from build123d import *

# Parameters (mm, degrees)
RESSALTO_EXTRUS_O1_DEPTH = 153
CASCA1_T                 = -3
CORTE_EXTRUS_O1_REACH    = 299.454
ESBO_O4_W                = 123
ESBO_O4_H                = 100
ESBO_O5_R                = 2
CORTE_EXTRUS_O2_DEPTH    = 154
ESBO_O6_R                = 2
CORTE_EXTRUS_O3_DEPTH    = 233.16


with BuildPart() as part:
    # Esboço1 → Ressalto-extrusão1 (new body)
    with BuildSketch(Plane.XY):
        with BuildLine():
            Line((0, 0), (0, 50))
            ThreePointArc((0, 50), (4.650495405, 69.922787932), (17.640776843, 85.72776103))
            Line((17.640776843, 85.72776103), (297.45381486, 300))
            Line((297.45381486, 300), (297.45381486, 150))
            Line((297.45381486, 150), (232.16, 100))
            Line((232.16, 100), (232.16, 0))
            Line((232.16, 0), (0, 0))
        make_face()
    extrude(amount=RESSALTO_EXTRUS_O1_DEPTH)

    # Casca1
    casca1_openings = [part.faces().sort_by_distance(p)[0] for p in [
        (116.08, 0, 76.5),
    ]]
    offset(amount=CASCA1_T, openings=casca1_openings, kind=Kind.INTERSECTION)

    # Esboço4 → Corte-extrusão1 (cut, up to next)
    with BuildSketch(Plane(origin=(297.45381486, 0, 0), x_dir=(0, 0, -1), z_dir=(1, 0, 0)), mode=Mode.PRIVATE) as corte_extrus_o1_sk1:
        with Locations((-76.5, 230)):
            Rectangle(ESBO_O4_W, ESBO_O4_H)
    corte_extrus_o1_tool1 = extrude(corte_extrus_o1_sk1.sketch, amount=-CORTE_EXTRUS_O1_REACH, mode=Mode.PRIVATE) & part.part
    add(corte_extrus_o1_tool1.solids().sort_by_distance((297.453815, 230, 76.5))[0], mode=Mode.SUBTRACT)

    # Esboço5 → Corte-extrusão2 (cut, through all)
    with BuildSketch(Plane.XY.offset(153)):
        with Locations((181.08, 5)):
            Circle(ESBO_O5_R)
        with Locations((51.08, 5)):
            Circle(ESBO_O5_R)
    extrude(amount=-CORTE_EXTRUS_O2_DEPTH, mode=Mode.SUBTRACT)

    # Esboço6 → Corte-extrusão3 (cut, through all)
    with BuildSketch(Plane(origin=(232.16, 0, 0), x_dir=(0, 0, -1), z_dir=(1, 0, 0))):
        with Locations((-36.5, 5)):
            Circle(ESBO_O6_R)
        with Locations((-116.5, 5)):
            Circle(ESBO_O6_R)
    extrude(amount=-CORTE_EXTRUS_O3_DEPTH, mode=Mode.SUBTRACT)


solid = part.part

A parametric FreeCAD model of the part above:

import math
import FreeCAD as App
import Part
import Sketcher
from FreeCAD import Vector


def faces_at(feature, points):
    """Names of the faces that lie closest to the given points."""
    faces = feature.Shape.Faces
    near = lambda p: min(range(len(faces)), key=lambda i: faces[i].distToShape(Part.Vertex(*p))[0])
    return sorted({f"Face{near(p) + 1}" for p in points})

doc = App.newDocument("Part")
body = doc.addObject("PartDesign::Body", "Body")

sketch1 = body.newObject("Sketcher::SketchObject", "Sketch")
sketch1.AttachmentSupport = (doc.getObject("XY_Plane"), [""])
sketch1.MapMode = "FlatFace"
sketch1.addGeometry(Part.LineSegment(Vector(0, 50, 0), Vector(0, 0, 0)), False)
sketch1.addGeometry(Part.LineSegment(Vector(0, 0, 0), Vector(232.16, 0, 0)), False)
sketch1.addGeometry(Part.LineSegment(Vector(232.16, 0, 0), Vector(232.16, 100, 0)), False)
sketch1.addGeometry(Part.LineSegment(Vector(232.16, 100, 0), Vector(297.453815, 150, 0)), False)
sketch1.addGeometry(Part.LineSegment(Vector(297.453815, 150, 0), Vector(297.453815, 300, 0)), False)
sketch1.addGeometry(Part.LineSegment(Vector(297.453815, 300, 0), Vector(17.640777, 85.727761, 0)), False)
sketch1.addGeometry(Part.ArcOfCircle(Part.Circle(Vector(45, 50, 0), Vector(0, 0, 1), 45), math.radians(127.443784), math.radians(180)), False)
sketch1.addConstraint(Sketcher.Constraint("Coincident", 0, 2, 1, 1))
sketch1.addConstraint(Sketcher.Constraint("Coincident", 1, 2, 2, 1))
sketch1.addConstraint(Sketcher.Constraint("Coincident", 2, 2, 3, 1))
sketch1.addConstraint(Sketcher.Constraint("Coincident", 3, 2, 4, 1))
sketch1.addConstraint(Sketcher.Constraint("Coincident", 4, 2, 5, 1))
sketch1.addConstraint(Sketcher.Constraint("Tangent", 5, 2, 6, 1))
sketch1.addConstraint(Sketcher.Constraint("Tangent", 6, 2, 0, 1))
sketch1.addConstraint(Sketcher.Constraint("Vertical", 0))
sketch1.addConstraint(Sketcher.Constraint("Horizontal", 1))
sketch1.addConstraint(Sketcher.Constraint("Vertical", 2))
sketch1.addConstraint(Sketcher.Constraint("Vertical", 4))
sketch1.addConstraint(Sketcher.Constraint("Coincident", 0, 2, -1, 1))
sketch1.addConstraint(Sketcher.Constraint("Parallel", 3, 5))
sketch1.addConstraint(Sketcher.Constraint("Radius", 6, 45.0))
sketch1.addConstraint(Sketcher.Constraint("DistanceY", 0, 2, 0, 1, 50.0))
sketch1.addConstraint(Sketcher.Constraint("DistanceY", 2, 1, 2, 2, 100.0))
sketch1.addConstraint(Sketcher.Constraint("DistanceY", 4, 1, 4, 2, 150.0))
sketch1.addConstraint(Sketcher.Constraint("DistanceY", -1, 1, 3, 2, 150.0))
sketch1.addConstraint(Sketcher.Constraint("DistanceX", 1, 1, 1, 2, 232.16))
pad1 = body.newObject("PartDesign::Pad", "Pad")
pad1.Profile = sketch1
pad1.Length = 153
doc.recompute()

thickness = body.newObject("PartDesign::Thickness", "Thickness")
thickness.Base = (pad1, faces_at(pad1, [(116.08, 0, 76.5)]))
thickness.Value = 3
thickness.Reversed = True
thickness.Join = "Intersection"

sketch2 = body.newObject("Sketcher::SketchObject", "Sketch001")
sketch2.AttachmentSupport = (doc.getObject("YZ_Plane"), [""])
sketch2.MapMode = "FlatFace"
sketch2.AttachmentOffset = App.Placement(Vector(0, 0, 297.453815), App.Rotation())
sketch2.addGeometry(Part.LineSegment(Vector(280, 138, 0), Vector(180, 138, 0)), False)
sketch2.addGeometry(Part.LineSegment(Vector(180, 138, 0), Vector(180, 15, 0)), False)
sketch2.addGeometry(Part.LineSegment(Vector(180, 15, 0), Vector(280, 15, 0)), False)
sketch2.addGeometry(Part.LineSegment(Vector(280, 15, 0), Vector(280, 138, 0)), False)
sketch2.addConstraint(Sketcher.Constraint("Coincident", 0, 2, 1, 1))
sketch2.addConstraint(Sketcher.Constraint("Coincident", 1, 2, 2, 1))
sketch2.addConstraint(Sketcher.Constraint("Coincident", 2, 2, 3, 1))
sketch2.addConstraint(Sketcher.Constraint("Coincident", 3, 2, 0, 1))
sketch2.addConstraint(Sketcher.Constraint("Horizontal", 0))
sketch2.addConstraint(Sketcher.Constraint("Vertical", 1))
sketch2.addConstraint(Sketcher.Constraint("Horizontal", 2))
sketch2.addConstraint(Sketcher.Constraint("Vertical", 3))
sketch2.addConstraint(Sketcher.Constraint("DistanceX", 0, 2, 0, 1, 100.0))
sketch2.addConstraint(Sketcher.Constraint("DistanceY", 1, 2, 1, 1, 123.0))
sketch2.addConstraint(Sketcher.Constraint("DistanceX", -1, 1, 0, 2, 180.0))
sketch2.addConstraint(Sketcher.Constraint("DistanceY", -1, 1, 0, 2, 138.0))
pocket1 = body.newObject("PartDesign::Pocket", "Pocket")
pocket1.Profile = sketch2
pocket1.Type = "UpToFirst"

sketch3 = body.newObject("Sketcher::SketchObject", "Sketch002")
sketch3.AttachmentSupport = (doc.getObject("XY_Plane"), [""])
sketch3.MapMode = "FlatFace"
sketch3.AttachmentOffset = App.Placement(Vector(0, 0, 153), App.Rotation())
sketch3.addGeometry(Part.Circle(Vector(181.08, 5, 0), Vector(0, 0, 1), 2), False)
sketch3.addGeometry(Part.Circle(Vector(51.08, 5, 0), Vector(0, 0, 1), 2), False)
sketch3.addConstraint(Sketcher.Constraint("Equal", 0, 1))
sketch3.addConstraint(Sketcher.Constraint("Horizontal", 0, 3, 1, 3))
sketch3.addConstraint(Sketcher.Constraint("Diameter", 0, 4.0))
sketch3.addConstraint(Sketcher.Constraint("DistanceY", -1, 1, 0, 3, 5.0))
sketch3.addConstraint(Sketcher.Constraint("DistanceX", 1, 3, 0, 3, 130.0))
sketch3.addConstraint(Sketcher.Constraint("DistanceX", -1, 1, 0, 3, 181.08))
pocket2 = body.newObject("PartDesign::Pocket", "Pocket001")
pocket2.Profile = sketch3
pocket2.Type = "ThroughAll"

sketch4 = body.newObject("Sketcher::SketchObject", "Sketch003")
sketch4.AttachmentSupport = (doc.getObject("YZ_Plane"), [""])
sketch4.MapMode = "FlatFace"
sketch4.AttachmentOffset = App.Placement(Vector(0, 0, 232.16), App.Rotation())
sketch4.addGeometry(Part.Circle(Vector(5, 36.5, 0), Vector(0, 0, 1), 2), False)
sketch4.addGeometry(Part.Circle(Vector(5, 116.5, 0), Vector(0, 0, 1), 2), False)
sketch4.addConstraint(Sketcher.Constraint("Equal", 0, 1))
sketch4.addConstraint(Sketcher.Constraint("Vertical", 0, 3, 1, 3))
sketch4.addConstraint(Sketcher.Constraint("Diameter", 0, 4.0))
sketch4.addConstraint(Sketcher.Constraint("DistanceX", -1, 1, 0, 3, 5.0))
sketch4.addConstraint(Sketcher.Constraint("DistanceY", 0, 3, 1, 3, 80.0))
sketch4.addConstraint(Sketcher.Constraint("DistanceY", -1, 1, 0, 3, 36.5))
pocket3 = body.newObject("PartDesign::Pocket", "Pocket002")
pocket3.Profile = sketch4
pocket3.Type = "ThroughAll"

doc.recompute()
